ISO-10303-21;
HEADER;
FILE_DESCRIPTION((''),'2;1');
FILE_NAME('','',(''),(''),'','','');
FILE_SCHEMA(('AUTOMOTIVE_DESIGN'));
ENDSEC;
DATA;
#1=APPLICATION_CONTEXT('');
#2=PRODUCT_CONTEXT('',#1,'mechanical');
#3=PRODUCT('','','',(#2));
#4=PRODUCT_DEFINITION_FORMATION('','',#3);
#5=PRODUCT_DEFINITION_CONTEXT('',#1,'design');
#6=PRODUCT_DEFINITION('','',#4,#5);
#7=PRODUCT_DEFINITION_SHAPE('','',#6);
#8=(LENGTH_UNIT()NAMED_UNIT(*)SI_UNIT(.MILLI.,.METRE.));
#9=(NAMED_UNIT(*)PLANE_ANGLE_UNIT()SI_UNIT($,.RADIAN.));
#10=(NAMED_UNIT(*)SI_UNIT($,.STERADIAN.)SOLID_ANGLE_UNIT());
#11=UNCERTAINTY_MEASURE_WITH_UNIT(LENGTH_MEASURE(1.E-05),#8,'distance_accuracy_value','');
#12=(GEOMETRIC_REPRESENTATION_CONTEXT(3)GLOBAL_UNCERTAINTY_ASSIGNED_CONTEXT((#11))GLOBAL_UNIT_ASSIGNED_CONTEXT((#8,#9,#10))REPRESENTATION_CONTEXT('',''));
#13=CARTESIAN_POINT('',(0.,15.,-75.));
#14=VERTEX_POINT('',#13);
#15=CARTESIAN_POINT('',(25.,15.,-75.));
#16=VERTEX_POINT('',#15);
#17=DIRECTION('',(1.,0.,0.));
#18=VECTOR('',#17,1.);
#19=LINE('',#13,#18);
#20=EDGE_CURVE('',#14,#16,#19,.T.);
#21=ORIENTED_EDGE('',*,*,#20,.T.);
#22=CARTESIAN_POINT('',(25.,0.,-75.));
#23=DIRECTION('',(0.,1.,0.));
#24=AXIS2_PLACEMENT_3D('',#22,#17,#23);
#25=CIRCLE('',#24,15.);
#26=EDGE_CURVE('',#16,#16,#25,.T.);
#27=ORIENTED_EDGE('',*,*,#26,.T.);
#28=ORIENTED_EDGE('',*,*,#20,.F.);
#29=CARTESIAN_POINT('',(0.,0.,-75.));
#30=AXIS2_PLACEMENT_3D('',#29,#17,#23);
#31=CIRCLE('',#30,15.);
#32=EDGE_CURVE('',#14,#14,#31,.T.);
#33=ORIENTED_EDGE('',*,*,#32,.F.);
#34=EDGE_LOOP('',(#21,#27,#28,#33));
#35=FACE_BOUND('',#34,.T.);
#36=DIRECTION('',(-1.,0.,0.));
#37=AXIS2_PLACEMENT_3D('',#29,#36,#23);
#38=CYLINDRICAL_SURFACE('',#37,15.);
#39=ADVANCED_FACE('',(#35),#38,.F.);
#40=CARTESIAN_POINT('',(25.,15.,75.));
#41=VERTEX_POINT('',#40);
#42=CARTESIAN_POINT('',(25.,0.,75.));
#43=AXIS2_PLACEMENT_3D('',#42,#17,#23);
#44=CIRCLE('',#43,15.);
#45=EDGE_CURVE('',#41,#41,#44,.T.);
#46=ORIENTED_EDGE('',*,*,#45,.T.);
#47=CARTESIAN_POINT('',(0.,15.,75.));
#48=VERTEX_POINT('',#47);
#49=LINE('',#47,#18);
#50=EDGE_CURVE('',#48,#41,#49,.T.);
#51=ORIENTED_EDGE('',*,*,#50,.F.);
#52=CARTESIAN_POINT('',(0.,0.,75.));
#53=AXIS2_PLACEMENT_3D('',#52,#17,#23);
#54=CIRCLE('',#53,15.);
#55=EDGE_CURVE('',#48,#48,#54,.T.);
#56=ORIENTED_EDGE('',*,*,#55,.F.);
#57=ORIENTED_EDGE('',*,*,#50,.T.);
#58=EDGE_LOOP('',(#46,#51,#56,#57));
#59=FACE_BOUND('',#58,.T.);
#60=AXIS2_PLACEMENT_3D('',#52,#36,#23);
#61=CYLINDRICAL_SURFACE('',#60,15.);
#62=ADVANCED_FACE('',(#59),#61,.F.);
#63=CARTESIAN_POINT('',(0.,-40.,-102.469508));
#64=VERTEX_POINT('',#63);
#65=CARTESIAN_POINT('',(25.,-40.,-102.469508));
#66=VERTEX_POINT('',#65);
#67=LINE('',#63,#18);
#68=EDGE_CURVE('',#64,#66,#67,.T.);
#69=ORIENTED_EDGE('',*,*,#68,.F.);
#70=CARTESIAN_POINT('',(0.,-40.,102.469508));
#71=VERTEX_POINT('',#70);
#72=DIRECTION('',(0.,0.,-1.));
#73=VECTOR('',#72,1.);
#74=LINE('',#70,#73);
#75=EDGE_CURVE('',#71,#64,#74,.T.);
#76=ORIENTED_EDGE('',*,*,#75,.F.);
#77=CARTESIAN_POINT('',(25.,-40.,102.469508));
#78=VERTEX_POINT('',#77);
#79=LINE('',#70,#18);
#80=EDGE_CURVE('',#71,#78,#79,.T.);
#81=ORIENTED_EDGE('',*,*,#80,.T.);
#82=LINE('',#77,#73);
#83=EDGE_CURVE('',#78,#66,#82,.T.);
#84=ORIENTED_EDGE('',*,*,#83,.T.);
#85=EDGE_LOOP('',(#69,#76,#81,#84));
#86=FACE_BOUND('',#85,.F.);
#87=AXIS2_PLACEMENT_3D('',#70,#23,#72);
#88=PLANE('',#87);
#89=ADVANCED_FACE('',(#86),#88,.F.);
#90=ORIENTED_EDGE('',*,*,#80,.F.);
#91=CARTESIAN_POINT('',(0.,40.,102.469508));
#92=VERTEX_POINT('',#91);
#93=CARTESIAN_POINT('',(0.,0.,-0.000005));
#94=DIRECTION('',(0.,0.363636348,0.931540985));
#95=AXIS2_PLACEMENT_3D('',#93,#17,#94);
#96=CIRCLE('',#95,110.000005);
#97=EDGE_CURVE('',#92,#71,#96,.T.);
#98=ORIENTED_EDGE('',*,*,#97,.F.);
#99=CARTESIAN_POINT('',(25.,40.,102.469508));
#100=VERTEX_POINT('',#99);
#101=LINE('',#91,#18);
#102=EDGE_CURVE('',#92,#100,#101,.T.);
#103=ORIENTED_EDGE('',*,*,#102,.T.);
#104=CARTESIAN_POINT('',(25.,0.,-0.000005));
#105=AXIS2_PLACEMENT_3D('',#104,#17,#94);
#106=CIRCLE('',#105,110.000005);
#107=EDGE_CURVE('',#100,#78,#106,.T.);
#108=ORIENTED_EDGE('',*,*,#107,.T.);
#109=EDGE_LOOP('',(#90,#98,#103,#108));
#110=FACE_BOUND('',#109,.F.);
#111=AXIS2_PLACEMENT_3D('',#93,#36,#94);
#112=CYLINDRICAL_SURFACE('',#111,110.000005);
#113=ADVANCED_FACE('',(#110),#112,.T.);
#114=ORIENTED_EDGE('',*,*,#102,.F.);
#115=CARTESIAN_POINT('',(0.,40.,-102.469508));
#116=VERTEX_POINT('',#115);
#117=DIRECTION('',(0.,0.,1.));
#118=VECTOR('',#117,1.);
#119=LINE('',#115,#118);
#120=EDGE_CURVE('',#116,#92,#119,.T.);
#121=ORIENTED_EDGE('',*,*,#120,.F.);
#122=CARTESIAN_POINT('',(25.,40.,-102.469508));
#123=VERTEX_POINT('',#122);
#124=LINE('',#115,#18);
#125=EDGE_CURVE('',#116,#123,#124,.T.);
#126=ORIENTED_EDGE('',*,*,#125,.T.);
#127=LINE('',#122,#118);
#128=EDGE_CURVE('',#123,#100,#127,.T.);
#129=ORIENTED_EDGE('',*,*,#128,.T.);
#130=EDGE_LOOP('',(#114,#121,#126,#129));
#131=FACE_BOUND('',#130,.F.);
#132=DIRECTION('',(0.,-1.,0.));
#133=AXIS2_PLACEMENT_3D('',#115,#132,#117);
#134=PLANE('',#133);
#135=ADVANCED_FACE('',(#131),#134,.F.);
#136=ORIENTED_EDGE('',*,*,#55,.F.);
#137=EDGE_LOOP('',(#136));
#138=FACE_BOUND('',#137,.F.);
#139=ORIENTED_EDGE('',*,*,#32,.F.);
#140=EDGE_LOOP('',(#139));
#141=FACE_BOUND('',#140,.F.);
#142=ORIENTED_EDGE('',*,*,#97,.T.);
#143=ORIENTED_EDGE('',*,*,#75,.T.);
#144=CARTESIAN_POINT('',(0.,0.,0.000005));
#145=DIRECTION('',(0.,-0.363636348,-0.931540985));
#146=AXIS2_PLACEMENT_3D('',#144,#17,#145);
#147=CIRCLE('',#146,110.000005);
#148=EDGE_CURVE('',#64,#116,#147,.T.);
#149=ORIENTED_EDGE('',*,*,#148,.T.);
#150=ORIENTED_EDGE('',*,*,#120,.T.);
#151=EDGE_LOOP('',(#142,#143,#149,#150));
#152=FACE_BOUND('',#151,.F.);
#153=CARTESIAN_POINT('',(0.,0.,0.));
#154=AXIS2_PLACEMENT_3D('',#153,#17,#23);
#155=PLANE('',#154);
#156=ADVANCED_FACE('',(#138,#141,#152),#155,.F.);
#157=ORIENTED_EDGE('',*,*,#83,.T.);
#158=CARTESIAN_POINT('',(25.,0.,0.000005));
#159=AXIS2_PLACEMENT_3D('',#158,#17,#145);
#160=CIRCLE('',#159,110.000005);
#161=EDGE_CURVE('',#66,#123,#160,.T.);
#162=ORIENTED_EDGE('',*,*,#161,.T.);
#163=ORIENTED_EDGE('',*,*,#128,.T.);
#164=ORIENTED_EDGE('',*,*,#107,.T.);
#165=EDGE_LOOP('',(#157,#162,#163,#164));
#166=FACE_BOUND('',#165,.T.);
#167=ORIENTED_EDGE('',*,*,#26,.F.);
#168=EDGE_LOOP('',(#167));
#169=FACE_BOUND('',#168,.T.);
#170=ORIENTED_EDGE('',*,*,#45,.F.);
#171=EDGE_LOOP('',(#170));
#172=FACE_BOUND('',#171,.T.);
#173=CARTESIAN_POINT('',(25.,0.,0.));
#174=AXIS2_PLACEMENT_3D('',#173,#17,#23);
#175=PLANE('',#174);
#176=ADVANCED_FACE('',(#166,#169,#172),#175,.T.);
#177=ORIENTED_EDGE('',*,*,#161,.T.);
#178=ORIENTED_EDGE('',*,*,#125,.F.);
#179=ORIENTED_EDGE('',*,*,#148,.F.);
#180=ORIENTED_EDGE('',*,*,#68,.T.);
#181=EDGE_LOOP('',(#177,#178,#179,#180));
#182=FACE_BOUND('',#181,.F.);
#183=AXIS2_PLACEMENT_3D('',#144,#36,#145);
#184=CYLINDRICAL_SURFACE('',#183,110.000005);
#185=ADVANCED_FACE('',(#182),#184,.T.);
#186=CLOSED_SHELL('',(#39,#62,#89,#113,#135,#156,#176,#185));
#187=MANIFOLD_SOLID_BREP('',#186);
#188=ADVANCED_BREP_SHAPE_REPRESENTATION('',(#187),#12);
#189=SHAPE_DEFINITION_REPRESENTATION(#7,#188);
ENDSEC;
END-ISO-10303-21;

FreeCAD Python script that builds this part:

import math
import FreeCAD as App
import Part
import Sketcher

V = App.Vector

doc = App.newDocument("Part")
body = doc.addObject("PartDesign::Body", "Body")

# Sketch on YZ plane
sketch1 = doc.addObject("Sketcher::SketchObject", "Sketch")
body.addObject(sketch1)
sketch1.AttachmentSupport = (doc.YZ_Plane, [""])
sketch1.MapMode = "FlatFace"
sketch1.addGeometry([
    Part.LineSegment(V(-40, 102.469508, 0), V(-40, -102.469508, 0)),  # 0
    Part.ArcOfCircle(Part.Circle(V(0, 0.000005, 0), V(0, 0, 1), 110.000005), math.radians(-111.323685), math.radians(-68.676315)),  # 1
    Part.LineSegment(V(40, -102.469508, 0), V(40, 102.469508, 0)),  # 2
    Part.ArcOfCircle(Part.Circle(V(0, -0.000005, 0), V(0, 0, 1), 110.000005), math.radians(68.676315), math.radians(111.323685)),  # 3
    Part.Circle(V(0, -75, 0), V(0, 0, 1), 15),  # 4
    Part.Circle(V(0, 75, 0), V(0, 0, 1), 15),  # 5
], False)
sketch1.addConstraint([
    Sketcher.Constraint("Coincident", 0, 2, 1, 1),
    Sketcher.Constraint("Coincident", 1, 2, 2, 1),
    Sketcher.Constraint("Coincident", 2, 2, 3, 1),
    Sketcher.Constraint("Coincident", 3, 2, 0, 1),
    Sketcher.Constraint("Vertical", 0),
    Sketcher.Constraint("Vertical", 2),
    Sketcher.Constraint("Coincident", 1, 3, -1, 1),
    Sketcher.Constraint("Coincident", 3, 3, -1, 1),
    Sketcher.Constraint("Equal", 1, 3),
    Sketcher.Constraint("Equal", 4, 5),
    Sketcher.Constraint("Symmetric", 4, 3, 5, 3, -1, 1),
    Sketcher.Constraint("PointOnObject", 4, 3, -2),
    Sketcher.Constraint("Horizontal", 0, 2, 1, 2),
    Sketcher.Constraint("Diameter", 4, 30.0),
    Sketcher.Constraint("DistanceY", 4, 3, -1, 1, 75.0),
    Sketcher.Constraint("DistanceX", 0, 2, -1, 1, 40.0),
    Sketcher.Constraint("Radius", 1, 110.000005),
])
pad1 = doc.addObject("PartDesign::Pad", "Pad")
body.addObject(pad1)
pad1.Profile = sketch1
pad1.Length = 25

doc.recompute()
